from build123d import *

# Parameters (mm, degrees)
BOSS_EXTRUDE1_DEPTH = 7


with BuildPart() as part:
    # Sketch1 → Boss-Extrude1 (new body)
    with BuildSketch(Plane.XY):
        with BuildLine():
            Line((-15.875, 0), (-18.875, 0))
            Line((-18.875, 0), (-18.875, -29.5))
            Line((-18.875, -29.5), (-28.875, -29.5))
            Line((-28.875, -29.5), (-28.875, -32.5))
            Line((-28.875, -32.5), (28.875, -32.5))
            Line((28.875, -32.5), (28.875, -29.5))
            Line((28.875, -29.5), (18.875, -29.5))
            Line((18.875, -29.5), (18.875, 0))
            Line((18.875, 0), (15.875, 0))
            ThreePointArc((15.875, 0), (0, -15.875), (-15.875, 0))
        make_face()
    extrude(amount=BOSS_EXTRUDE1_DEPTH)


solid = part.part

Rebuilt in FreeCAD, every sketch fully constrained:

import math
import FreeCAD as App
import Part
import Sketcher

V = App.Vector
Q = App.Units.Quantity

doc = App.newDocument("Part")
params = doc.addObject("Spreadsheet::Sheet", "Params")
for row, (alias, value) in enumerate([
    ("sketch1_width", "3 mm"),
    ("sketch1_width2", "10 mm"),
    ("sketch1_height", "29.5 mm"),
    ("pad1_length", "7 mm"),
], start=1):
    params.set(f"A{row}", alias)
    params.set(f"B{row}", "=" + value)
    params.setAlias(f"B{row}", alias)

body = doc.addObject("PartDesign::Body", "Body")

# Sketch on XY plane
sketch1 = body.newObject("Sketcher::SketchObject", "Sketch")
sketch1.AttachmentSupport = (doc.getObject("XY_Plane"), [""])
sketch1.MapMode = "FlatFace"
sketch1.addGeometry([
    Part.LineSegment(V(-15.9, 0, 0), V(-18.9, 0, 0)),  # 0
    Part.LineSegment(V(-18.9, 0, 0), V(-18.9, -29.5, 0)),  # 1
    Part.LineSegment(V(-18.9, -29.5, 0), V(-28.9, -29.5, 0)),  # 2
    Part.LineSegment(V(-28.9, -29.5, 0), V(-28.9, -32.5, 0)),  # 3
    Part.LineSegment(V(-28.9, -32.5, 0), V(28.9, -32.5, 0)),  # 4
    Part.LineSegment(V(28.9, -32.5, 0), V(28.9, -29.5, 0)),  # 5
    Part.LineSegment(V(28.9, -29.5, 0), V(18.9, -29.5, 0)),  # 6
    Part.LineSegment(V(18.9, -29.5, 0), V(18.9, 0, 0)),  # 7
    Part.LineSegment(V(18.9, 0, 0), V(15.9, 0, 0)),  # 8
    Part.ArcOfCircle(Part.Circle(V(0, 0, 0), V(0, 0, 1), 15.9), math.radians(180), math.radians(360)),  # 9
], False)
sketch1.addConstraint([
    Sketcher.Constraint("Coincident", 0, 2, 1, 1),
    Sketcher.Constraint("Coincident", 1, 2, 2, 1),
    Sketcher.Constraint("Coincident", 2, 2, 3, 1),
    Sketcher.Constraint("Coincident", 3, 2, 4, 1),
    Sketcher.Constraint("Coincident", 4, 2, 5, 1),
    Sketcher.Constraint("Coincident", 5, 2, 6, 1),
    Sketcher.Constraint("Coincident", 6, 2, 7, 1),
    Sketcher.Constraint("Coincident", 7, 2, 8, 1),
    Sketcher.Constraint("Coincident", 8, 2, 9, 2),
    Sketcher.Constraint("Coincident", 9, 1, 0, 1),
    Sketcher.Constraint("Horizontal", 0),
    Sketcher.Constraint("Vertical", 1),
    Sketcher.Constraint("Horizontal", 2),
    Sketcher.Constraint("Vertical", 3),
    Sketcher.Constraint("Horizontal", 4),
    Sketcher.Constraint("Vertical", 5),
    Sketcher.Constraint("Horizontal", 6),
    Sketcher.Constraint("Vertical", 7),
    Sketcher.Constraint("Horizontal", 8),
    Sketcher.Constraint("Coincident", 9, 3, -1, 1),
    Sketcher.Constraint("Symmetric", 0, 2, 7, 2, -1, 1),
    Sketcher.Constraint("Symmetric", 2, 2, 5, 2, -2),
    Sketcher.Constraint("PointOnObject", 0, 2, -1),
    Sketcher.Constraint("Equal", 8, 3),
    Sketcher.Constraint("DistanceX", 0, 2, 0, 1, Q("3 mm")),
    Sketcher.Constraint("DistanceX", 2, 2, 2, 1, Q("10 mm")),
    Sketcher.Constraint("DistanceY", 1, 2, 1, 1, Q("29.5 mm")),
    Sketcher.Constraint("Radius", 9, Q("15.875 mm")),
])
sketch1.setExpression("Constraints[24]", "Params.sketch1_width")
sketch1.setExpression("Constraints[25]", "Params.sketch1_width2")
sketch1.setExpression("Constraints[26]", "Params.sketch1_height")
pad1 = body.newObject("PartDesign::Pad", "Pad")
pad1.Profile = sketch1
pad1.setExpression("Length", "Params.pad1_length")

doc.recompute()
